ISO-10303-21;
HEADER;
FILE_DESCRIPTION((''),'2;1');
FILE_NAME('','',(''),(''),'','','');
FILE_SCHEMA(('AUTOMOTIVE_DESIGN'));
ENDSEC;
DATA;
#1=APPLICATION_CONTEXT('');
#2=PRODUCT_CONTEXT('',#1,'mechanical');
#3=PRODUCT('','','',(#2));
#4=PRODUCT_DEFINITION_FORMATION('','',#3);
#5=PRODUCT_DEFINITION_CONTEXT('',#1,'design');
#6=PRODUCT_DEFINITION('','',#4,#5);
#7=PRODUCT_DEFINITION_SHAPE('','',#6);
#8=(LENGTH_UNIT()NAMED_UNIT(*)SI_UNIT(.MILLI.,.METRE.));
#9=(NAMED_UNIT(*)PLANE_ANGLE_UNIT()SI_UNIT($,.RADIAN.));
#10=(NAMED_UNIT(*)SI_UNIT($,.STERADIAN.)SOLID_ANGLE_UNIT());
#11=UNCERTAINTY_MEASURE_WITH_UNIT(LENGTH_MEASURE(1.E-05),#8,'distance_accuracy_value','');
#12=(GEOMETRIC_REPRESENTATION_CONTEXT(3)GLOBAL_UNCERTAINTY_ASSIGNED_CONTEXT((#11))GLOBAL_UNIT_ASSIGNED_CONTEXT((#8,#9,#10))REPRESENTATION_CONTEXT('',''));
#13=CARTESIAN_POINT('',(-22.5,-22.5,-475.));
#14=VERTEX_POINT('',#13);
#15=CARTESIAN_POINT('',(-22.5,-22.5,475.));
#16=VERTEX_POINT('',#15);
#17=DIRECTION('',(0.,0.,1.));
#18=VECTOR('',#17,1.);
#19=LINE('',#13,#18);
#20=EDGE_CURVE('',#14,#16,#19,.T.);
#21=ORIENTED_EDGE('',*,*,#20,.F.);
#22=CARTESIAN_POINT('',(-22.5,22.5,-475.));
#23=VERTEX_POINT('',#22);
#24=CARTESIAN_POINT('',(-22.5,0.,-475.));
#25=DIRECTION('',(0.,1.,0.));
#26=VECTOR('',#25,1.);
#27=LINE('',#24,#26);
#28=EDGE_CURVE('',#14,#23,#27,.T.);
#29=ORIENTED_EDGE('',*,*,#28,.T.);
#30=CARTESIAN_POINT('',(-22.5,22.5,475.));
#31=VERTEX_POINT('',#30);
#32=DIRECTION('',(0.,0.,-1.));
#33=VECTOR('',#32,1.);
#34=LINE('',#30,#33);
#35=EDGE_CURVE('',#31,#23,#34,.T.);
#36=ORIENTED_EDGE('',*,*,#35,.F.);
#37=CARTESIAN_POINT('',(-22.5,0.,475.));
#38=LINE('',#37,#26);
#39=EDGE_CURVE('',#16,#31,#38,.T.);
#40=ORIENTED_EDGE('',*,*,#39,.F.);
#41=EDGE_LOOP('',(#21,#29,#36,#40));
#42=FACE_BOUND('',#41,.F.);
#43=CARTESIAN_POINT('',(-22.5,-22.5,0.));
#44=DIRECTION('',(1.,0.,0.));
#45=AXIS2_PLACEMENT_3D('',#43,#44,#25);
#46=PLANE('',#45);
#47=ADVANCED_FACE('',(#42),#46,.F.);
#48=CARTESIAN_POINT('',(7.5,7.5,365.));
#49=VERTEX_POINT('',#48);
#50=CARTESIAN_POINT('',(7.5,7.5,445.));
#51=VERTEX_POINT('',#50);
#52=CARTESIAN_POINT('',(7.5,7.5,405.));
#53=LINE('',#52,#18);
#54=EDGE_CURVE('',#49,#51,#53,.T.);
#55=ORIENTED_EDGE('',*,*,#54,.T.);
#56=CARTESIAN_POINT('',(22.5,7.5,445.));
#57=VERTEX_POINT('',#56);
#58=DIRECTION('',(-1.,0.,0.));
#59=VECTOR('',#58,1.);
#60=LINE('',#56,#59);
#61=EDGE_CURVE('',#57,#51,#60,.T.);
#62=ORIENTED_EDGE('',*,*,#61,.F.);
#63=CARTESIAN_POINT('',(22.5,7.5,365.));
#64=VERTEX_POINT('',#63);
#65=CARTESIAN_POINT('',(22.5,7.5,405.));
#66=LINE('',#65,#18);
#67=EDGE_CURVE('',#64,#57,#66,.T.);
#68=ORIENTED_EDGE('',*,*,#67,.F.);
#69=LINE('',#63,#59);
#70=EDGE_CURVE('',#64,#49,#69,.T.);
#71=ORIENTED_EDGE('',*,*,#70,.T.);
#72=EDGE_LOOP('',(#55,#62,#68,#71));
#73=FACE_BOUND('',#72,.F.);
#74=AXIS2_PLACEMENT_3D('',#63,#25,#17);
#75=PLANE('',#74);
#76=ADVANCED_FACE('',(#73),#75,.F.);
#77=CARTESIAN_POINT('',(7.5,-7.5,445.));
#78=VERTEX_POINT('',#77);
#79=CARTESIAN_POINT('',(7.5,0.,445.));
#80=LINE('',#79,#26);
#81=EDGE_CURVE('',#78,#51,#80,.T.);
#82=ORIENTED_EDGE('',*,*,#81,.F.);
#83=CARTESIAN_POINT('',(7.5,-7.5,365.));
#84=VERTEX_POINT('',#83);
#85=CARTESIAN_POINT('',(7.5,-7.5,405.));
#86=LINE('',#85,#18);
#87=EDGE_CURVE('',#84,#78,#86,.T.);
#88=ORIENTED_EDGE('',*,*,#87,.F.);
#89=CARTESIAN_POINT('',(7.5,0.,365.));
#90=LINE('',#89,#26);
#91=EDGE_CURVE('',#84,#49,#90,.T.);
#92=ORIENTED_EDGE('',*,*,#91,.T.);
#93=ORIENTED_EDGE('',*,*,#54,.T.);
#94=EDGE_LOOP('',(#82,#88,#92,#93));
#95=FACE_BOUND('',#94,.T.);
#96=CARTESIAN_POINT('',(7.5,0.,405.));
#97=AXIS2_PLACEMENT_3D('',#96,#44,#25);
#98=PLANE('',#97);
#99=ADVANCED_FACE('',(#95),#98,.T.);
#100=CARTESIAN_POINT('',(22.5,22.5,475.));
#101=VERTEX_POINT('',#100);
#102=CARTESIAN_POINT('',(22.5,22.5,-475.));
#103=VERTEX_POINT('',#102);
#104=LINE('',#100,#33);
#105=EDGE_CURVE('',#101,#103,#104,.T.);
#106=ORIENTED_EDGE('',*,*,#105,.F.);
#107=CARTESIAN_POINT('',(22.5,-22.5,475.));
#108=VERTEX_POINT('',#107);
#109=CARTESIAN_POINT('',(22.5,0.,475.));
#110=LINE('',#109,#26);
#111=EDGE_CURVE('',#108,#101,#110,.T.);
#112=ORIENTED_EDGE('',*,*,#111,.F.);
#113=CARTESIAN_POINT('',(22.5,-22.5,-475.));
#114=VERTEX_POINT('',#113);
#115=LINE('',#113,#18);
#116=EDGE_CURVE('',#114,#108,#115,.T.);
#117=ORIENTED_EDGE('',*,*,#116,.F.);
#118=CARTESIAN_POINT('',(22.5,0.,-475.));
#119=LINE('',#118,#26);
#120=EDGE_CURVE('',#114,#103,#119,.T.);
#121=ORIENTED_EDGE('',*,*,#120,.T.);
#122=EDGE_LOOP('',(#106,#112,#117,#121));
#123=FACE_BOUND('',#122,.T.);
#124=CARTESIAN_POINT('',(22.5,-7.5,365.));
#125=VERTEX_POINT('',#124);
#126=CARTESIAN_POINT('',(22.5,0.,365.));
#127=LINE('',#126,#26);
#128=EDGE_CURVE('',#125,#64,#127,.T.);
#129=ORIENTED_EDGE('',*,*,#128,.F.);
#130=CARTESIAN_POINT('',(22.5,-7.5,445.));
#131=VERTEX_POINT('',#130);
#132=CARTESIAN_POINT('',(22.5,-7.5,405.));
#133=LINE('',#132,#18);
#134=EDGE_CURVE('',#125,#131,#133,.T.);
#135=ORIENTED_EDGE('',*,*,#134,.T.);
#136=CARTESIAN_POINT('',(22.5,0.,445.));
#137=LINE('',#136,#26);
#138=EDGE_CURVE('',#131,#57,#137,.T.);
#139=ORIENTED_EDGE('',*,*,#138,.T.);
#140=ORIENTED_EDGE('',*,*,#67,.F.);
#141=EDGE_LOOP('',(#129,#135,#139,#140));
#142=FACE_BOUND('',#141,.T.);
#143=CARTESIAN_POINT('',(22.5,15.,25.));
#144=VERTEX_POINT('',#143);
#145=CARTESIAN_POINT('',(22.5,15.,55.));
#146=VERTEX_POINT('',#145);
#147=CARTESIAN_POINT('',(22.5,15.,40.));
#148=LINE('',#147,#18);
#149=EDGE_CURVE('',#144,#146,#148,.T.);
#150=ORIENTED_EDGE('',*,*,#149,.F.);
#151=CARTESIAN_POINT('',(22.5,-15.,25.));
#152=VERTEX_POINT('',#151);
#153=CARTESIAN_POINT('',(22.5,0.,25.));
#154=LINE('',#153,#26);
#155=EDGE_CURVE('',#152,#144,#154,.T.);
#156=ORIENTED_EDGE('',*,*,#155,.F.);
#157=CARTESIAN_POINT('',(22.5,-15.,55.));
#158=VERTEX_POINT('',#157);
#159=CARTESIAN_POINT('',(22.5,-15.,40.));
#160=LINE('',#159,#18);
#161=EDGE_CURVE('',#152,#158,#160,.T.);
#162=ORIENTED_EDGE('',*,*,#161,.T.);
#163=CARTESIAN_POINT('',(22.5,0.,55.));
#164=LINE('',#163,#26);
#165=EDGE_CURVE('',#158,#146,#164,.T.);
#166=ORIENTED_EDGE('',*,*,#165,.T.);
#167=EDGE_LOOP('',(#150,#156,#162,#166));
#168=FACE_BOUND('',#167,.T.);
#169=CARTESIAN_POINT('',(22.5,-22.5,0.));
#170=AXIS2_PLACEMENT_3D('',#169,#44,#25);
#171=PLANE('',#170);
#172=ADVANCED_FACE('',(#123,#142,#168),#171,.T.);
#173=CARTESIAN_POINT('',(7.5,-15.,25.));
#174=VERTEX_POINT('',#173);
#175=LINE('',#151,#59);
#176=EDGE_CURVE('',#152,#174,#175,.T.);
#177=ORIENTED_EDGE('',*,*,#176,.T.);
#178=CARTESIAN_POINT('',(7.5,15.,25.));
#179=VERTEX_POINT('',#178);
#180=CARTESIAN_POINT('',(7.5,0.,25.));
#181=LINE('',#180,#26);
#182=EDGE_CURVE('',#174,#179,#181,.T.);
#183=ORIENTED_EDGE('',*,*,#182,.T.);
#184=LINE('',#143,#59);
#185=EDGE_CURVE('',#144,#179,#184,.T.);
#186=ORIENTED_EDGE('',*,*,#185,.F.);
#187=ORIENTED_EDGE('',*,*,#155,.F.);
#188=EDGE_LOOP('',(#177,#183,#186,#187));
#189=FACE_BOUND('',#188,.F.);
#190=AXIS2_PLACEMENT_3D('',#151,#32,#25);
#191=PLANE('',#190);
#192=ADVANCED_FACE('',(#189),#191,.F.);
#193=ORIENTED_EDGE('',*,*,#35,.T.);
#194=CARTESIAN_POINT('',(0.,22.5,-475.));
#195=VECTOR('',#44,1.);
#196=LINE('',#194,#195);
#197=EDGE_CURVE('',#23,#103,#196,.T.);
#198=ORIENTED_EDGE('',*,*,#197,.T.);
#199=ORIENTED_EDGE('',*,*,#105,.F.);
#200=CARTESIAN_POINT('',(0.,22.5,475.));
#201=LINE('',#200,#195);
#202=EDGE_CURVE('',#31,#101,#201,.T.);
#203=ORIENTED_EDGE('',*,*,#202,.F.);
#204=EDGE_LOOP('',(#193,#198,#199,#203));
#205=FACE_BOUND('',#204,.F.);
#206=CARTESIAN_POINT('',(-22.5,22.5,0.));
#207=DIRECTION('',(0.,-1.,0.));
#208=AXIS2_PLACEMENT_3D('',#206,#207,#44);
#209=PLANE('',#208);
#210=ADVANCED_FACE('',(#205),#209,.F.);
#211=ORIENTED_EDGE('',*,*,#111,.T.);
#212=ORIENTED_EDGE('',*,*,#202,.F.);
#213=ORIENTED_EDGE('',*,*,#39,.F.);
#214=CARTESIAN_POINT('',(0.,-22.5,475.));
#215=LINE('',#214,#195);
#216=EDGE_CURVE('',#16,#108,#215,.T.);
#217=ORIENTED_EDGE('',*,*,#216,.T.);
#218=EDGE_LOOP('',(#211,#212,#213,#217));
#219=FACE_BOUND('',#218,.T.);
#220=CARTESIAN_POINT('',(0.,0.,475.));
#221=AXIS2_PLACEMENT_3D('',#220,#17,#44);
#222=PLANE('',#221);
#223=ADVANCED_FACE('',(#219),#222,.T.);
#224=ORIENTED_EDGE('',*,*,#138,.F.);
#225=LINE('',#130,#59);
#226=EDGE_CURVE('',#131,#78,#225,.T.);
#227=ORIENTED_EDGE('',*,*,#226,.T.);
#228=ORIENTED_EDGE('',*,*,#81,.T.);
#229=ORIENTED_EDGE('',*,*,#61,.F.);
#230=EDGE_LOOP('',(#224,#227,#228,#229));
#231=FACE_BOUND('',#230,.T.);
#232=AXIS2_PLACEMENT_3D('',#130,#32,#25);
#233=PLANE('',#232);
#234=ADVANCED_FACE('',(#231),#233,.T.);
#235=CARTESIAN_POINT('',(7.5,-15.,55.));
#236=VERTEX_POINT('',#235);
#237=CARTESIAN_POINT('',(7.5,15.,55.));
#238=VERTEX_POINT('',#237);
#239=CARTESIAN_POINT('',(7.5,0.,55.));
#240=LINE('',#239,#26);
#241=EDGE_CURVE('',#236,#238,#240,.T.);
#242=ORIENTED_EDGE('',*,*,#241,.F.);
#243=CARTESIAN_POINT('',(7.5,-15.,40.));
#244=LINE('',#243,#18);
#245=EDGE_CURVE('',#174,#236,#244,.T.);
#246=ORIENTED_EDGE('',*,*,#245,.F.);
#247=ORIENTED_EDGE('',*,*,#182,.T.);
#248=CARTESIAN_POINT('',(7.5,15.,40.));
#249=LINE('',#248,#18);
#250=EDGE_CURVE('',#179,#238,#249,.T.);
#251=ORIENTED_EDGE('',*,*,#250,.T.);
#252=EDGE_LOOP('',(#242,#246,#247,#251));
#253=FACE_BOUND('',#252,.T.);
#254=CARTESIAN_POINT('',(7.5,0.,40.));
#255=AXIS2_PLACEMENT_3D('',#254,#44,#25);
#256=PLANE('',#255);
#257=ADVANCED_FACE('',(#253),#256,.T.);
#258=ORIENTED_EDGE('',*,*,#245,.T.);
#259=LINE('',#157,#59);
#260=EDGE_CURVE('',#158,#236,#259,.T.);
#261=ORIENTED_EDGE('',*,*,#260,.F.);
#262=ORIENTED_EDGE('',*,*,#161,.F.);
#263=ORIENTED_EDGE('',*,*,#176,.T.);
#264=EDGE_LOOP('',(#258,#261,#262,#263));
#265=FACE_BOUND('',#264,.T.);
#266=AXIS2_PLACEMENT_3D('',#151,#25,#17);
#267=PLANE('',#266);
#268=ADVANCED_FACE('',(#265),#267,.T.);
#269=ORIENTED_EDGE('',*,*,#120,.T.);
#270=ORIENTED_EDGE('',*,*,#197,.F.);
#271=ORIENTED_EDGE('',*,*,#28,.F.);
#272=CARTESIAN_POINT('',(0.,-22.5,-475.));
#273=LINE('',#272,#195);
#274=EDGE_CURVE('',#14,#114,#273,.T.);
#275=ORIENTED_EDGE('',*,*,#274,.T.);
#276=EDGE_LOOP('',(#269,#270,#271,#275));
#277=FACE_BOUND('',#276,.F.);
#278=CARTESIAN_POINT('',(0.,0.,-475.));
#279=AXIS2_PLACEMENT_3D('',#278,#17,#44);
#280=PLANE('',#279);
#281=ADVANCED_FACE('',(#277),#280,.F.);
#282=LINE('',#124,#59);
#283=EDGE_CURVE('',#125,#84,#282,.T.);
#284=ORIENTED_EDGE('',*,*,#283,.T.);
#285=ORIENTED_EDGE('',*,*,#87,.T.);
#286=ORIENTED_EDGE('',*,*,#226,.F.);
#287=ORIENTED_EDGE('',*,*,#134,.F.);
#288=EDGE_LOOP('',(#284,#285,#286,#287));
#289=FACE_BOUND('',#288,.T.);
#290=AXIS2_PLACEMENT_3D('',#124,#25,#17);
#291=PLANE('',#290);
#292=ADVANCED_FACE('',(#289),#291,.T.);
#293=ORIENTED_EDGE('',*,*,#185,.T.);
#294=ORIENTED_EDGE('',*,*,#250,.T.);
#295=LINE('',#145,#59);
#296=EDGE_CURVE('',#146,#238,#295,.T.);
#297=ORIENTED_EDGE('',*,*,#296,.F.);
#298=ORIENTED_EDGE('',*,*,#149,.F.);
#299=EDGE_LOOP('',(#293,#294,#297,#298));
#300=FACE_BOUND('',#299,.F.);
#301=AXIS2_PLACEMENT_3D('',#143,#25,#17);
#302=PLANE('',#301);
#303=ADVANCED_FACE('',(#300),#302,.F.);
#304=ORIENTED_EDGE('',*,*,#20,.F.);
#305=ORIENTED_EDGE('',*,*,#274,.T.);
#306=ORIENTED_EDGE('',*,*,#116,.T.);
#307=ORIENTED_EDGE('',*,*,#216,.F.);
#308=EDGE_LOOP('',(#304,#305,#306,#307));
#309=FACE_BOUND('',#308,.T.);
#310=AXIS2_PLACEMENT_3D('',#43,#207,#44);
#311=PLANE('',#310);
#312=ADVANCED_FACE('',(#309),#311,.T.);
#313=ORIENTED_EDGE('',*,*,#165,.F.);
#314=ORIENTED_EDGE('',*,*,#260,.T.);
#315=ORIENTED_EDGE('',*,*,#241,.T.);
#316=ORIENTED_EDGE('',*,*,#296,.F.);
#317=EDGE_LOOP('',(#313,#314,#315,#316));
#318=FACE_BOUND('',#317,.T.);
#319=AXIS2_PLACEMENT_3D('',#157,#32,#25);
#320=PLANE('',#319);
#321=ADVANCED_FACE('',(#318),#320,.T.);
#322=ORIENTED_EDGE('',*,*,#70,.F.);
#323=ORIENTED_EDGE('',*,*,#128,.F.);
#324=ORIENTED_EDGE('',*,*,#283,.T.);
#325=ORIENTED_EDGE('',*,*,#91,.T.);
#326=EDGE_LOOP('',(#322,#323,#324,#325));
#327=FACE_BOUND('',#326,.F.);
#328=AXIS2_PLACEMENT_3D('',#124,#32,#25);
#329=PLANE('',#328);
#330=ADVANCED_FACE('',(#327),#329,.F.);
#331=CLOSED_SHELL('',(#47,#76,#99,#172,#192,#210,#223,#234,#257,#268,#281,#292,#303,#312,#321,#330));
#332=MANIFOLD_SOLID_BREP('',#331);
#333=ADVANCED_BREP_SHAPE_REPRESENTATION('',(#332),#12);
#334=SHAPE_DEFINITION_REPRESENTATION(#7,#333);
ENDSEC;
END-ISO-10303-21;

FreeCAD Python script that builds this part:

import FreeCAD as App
import Part
import Sketcher

V = App.Vector
Q = App.Units.Quantity


def add_polygon(sketch, points):
    """Adds a closed chain of lines whose ends are joined by coincident constraints."""
    first, n = sketch.GeometryCount, len(points)
    for a, b in zip(points, points[1:] + points[:1]):
        sketch.addGeometry(Part.LineSegment(App.Vector(*a, 0), App.Vector(*b, 0)), False)
    for i in range(n):
        sketch.addConstraint(Sketcher.Constraint("Coincident", first + i, 2, first + (i + 1) % n, 1))

doc = App.newDocument("Part")
body = doc.addObject("PartDesign::Body", "Body")

sketch1 = doc.addObject("Sketcher::SketchObject", "Sketch")
body.addObject(sketch1)
sketch1.AttachmentSupport = (doc.XY_Plane, [""])
sketch1.MapMode = "FlatFace"
add_polygon(sketch1, [(-22.5, 22.5), (-22.5, -22.5), (22.5, -22.5), (22.5, 22.5)])
sketch1.addConstraint(Sketcher.Constraint("Vertical", 0))
sketch1.addConstraint(Sketcher.Constraint("Horizontal", 1))
sketch1.addConstraint(Sketcher.Constraint("Vertical", 2))
sketch1.addConstraint(Sketcher.Constraint("Horizontal", 3))
sketch1.addConstraint(Sketcher.Constraint("Symmetric", 0, 2, 2, 2, -1, 1))
sketch1.addConstraint(Sketcher.Constraint("Equal", 3, 0))
sketch1.addConstraint(Sketcher.Constraint("DistanceX", 1, 1, 1, 2, Q("45 mm")))
pad1 = doc.addObject("PartDesign::Pad", "Pad")
body.addObject(pad1)
pad1.Profile = sketch1
pad1.Length = 950
pad1.Midplane = True

sketch2 = doc.addObject("Sketcher::SketchObject", "Sketch001")
body.addObject(sketch2)
sketch2.AttachmentSupport = (doc.YZ_Plane, [""])
sketch2.MapMode = "FlatFace"
sketch2.AttachmentOffset = App.Placement(V(0, 0, 22.5), App.Rotation())
add_polygon(sketch2, [(-7.5, 445), (-7.5, 365), (7.5, 365), (7.5, 445)])
add_polygon(sketch2, [(-15, 55), (-15, 25), (15, 25), (15, 55)])
sketch2.addConstraint(Sketcher.Constraint("Vertical", 0))
sketch2.addConstraint(Sketcher.Constraint("Horizontal", 1))
sketch2.addConstraint(Sketcher.Constraint("Vertical", 2))
sketch2.addConstraint(Sketcher.Constraint("Horizontal", 3))
sketch2.addConstraint(Sketcher.Constraint("Vertical", 4))
sketch2.addConstraint(Sketcher.Constraint("Horizontal", 5))
sketch2.addConstraint(Sketcher.Constraint("Vertical", 6))
sketch2.addConstraint(Sketcher.Constraint("Horizontal", 7))
sketch2.addConstraint(Sketcher.Constraint("Equal", 7, 4))
sketch2.addConstraint(Sketcher.Constraint("DistanceX", 1, 1, 1, 2, Q("15 mm")))
sketch2.addConstraint(Sketcher.Constraint("DistanceX", 5, 1, 5, 2, Q("30 mm")))
sketch2.addConstraint(Sketcher.Constraint("DistanceY", 0, 2, 0, 1, Q("80 mm")))
sketch2.addConstraint(Sketcher.Constraint("DistanceY", -1, 1, 0, 2, Q("365 mm")))
sketch2.addConstraint(Sketcher.Constraint("DistanceX", 4, 2, -1, 1, Q("15 mm")))
sketch2.addConstraint(Sketcher.Constraint("DistanceY", -1, 1, 4, 2, Q("25 mm")))
sketch2.addConstraint(Sketcher.Constraint("DistanceX", 0, 2, -1, 1, Q("7.5 mm")))
pocket1 = doc.addObject("PartDesign::Pocket", "Pocket")
body.addObject(pocket1)
pocket1.Profile = sketch2
pocket1.Length = 15

doc.recompute()
